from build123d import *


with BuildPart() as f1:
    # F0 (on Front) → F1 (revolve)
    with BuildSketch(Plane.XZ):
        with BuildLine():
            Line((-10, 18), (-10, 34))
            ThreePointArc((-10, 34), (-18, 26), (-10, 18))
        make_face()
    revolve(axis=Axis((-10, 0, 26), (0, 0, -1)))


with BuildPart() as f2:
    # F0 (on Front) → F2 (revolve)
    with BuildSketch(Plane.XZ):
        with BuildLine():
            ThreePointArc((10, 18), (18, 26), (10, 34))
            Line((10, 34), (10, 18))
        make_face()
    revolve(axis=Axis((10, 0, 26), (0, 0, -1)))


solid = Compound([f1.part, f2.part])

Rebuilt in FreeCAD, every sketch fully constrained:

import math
import FreeCAD as App
import Part
import Sketcher

V = App.Vector

doc = App.newDocument("Part")
params = doc.addObject("Spreadsheet::Sheet", "Params")
for row, (alias, value) in enumerate([
    ("sketch1_radius", "8 mm"),
    ("revolution_angle", "360 deg"),
    ("sketch2_radius", "8 mm"),
    ("revolution2_angle", "360 deg"),
], start=1):
    params.set(f"A{row}", alias)
    params.set(f"B{row}", "=" + value)
    params.setAlias(f"B{row}", alias)

body = doc.addObject("PartDesign::Body", "Body")

# Sketch on XZ plane
sketch1 = doc.addObject("Sketcher::SketchObject", "Sketch")
body.addObject(sketch1)
sketch1.AttachmentSupport = (doc.XZ_Plane, [""])
sketch1.MapMode = "FlatFace"
sketch1.addGeometry(Part.LineSegment(V(-10, 18, 0), V(-10, 34, 0)), False)
sketch1.addGeometry(Part.ArcOfCircle(Part.Circle(V(-10, 26, 0), V(0, 0, 1), 8), math.radians(90), math.radians(270)), False)
sketch1.addGeometry(Part.LineSegment(V(-10, 34, 0), V(-10, 18, 0)), True)  # axis
sketch1.addConstraint(Sketcher.Constraint("Coincident", 0, 1, 1, 2))
sketch1.addConstraint(Sketcher.Constraint("Coincident", 1, 1, 0, 2))
sketch1.addConstraint(Sketcher.Constraint("Vertical", 0))
sketch1.addConstraint(Sketcher.Constraint("Vertical", 2))
sketch1.addConstraint(Sketcher.Constraint("Coincident", 2, 1, 1, 1))
sketch1.addConstraint(Sketcher.Constraint("Vertical", 1, 3, 0, 1))
sketch1.addConstraint(Sketcher.Constraint("Equal", 0, 2))
sketch1.addConstraint(Sketcher.Constraint("Radius", 1, 8.0))
sketch1.addConstraint(Sketcher.Constraint("DistanceX", 1, 3, -1, 1, 10.0))
sketch1.addConstraint(Sketcher.Constraint("DistanceY", -1, 1, 1, 3, 26.0))
sketch1.setExpression("Constraints[7]", "Params.sketch1_radius")
revolution = doc.addObject("PartDesign::Revolution", "Revolution")
body.addObject(revolution)
revolution.Profile = sketch1
revolution.ReferenceAxis = (sketch1, ["Axis0"])
revolution.setExpression("Angle", "Params.revolution_angle")
body2 = doc.addObject("PartDesign::Body", "Body001")

# Sketch on XZ plane
sketch2 = doc.addObject("Sketcher::SketchObject", "Sketch001")
body2.addObject(sketch2)
sketch2.AttachmentSupport = (doc.getObject("XZ_Plane001"), [""])
sketch2.MapMode = "FlatFace"
sketch2.addGeometry(Part.ArcOfCircle(Part.Circle(V(10, 26, 0), V(0, 0, 1), 8), math.radians(-90), math.radians(90)), False)
sketch2.addGeometry(Part.LineSegment(V(10, 34, 0), V(10, 18, 0)), False)
sketch2.addGeometry(Part.LineSegment(V(10, 34, 0), V(10, 18, 0)), True)  # axis
sketch2.addConstraint(Sketcher.Constraint("Coincident", 0, 1, 1, 2))
sketch2.addConstraint(Sketcher.Constraint("Coincident", 1, 1, 0, 2))
sketch2.addConstraint(Sketcher.Constraint("Vertical", 1))
sketch2.addConstraint(Sketcher.Constraint("Vertical", 2))
sketch2.addConstraint(Sketcher.Constraint("Coincident", 2, 1, 1, 1))
sketch2.addConstraint(Sketcher.Constraint("Equal", 1, 2))
sketch2.addConstraint(Sketcher.Constraint("Radius", 0, 8.0))
sketch2.addConstraint(Sketcher.Constraint("DistanceX", -1, 1, 0, 3, 10.0))
sketch2.addConstraint(Sketcher.Constraint("DistanceY", -1, 1, 0, 3, 26.0))
sketch2.addConstraint(Sketcher.Constraint("DistanceX", -1, 1, 0, 1, 10.0))
sketch2.setExpression("Constraints[6]", "Params.sketch2_radius")
revolution2 = doc.addObject("PartDesign::Revolution", "Revolution001")
body2.addObject(revolution2)
revolution2.Profile = sketch2
revolution2.ReferenceAxis = (sketch2, ["Axis0"])
revolution2.setExpression("Angle", "Params.revolution2_angle")

doc.recompute()
